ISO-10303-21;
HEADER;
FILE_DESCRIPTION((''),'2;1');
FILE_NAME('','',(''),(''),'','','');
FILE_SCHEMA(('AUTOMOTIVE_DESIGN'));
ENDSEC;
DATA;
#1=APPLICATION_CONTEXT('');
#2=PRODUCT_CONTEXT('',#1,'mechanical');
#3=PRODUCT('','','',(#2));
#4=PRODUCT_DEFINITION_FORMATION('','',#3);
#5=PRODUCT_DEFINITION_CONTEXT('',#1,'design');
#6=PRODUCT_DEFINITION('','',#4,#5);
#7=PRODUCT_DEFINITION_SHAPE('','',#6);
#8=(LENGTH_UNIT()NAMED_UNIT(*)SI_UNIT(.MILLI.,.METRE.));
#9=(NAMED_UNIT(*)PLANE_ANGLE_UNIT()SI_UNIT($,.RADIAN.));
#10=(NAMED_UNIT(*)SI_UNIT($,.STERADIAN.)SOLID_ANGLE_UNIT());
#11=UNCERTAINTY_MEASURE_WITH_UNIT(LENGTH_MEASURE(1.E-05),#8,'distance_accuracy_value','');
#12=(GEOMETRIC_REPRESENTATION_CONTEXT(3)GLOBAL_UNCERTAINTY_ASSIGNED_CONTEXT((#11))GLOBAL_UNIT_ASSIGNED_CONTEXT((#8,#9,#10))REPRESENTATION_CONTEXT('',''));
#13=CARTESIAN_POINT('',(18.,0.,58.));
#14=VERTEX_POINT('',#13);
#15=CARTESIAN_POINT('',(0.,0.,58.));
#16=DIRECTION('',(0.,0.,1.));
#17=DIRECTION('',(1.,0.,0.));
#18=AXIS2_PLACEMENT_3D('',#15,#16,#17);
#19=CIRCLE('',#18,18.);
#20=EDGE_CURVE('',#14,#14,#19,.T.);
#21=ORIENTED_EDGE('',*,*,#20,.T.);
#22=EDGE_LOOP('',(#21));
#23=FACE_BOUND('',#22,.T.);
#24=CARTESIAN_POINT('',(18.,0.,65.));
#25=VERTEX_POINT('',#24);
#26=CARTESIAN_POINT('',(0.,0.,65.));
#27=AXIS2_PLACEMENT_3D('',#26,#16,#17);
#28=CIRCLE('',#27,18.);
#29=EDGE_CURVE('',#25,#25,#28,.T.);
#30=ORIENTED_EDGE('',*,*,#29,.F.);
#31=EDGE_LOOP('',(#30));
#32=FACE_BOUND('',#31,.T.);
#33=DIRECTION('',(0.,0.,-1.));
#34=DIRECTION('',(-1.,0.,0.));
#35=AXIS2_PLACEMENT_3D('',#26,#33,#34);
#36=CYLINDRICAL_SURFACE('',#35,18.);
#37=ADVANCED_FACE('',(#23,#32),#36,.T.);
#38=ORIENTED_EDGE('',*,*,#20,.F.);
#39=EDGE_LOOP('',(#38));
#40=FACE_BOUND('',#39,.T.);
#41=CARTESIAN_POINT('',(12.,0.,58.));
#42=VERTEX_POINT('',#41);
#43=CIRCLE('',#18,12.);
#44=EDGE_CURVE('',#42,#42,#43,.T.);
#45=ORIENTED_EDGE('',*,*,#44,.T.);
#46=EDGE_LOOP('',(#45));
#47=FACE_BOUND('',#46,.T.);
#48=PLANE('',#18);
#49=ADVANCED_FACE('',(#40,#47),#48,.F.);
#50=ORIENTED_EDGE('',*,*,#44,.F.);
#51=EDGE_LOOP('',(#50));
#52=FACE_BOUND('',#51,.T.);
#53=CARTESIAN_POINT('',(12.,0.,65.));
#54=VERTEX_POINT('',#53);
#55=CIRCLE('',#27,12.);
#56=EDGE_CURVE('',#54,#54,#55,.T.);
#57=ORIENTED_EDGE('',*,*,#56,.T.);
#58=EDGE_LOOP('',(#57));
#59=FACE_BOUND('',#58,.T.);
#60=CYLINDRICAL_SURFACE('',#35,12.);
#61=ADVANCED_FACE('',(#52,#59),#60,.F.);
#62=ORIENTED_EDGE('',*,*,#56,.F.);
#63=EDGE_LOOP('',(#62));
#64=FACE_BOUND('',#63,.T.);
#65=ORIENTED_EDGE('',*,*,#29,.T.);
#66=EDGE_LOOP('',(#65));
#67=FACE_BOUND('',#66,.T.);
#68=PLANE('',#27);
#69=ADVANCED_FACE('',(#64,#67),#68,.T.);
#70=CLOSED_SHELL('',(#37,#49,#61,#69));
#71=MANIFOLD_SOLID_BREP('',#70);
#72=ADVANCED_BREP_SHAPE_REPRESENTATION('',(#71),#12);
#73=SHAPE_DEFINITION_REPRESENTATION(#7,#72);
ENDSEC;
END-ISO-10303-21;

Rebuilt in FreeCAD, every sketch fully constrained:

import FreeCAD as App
import Part
import Sketcher

V = App.Vector

doc = App.newDocument("Part")
params = doc.addObject("Spreadsheet::Sheet", "Params")
for row, (alias, value) in enumerate([
    ("sketch1_diameter", "36 mm"),
    ("sketch1_diameter2", "24 mm"),
    ("pad1_length", "7 mm"),
], start=1):
    params.set(f"A{row}", alias)
    params.set(f"B{row}", "=" + value)
    params.setAlias(f"B{row}", alias)

body = doc.addObject("PartDesign::Body", "Body")

# Sketch on XY plane
sketch1 = doc.addObject("Sketcher::SketchObject", "Sketch")
body.addObject(sketch1)
sketch1.AttachmentSupport = (doc.XY_Plane, [""])
sketch1.MapMode = "FlatFace"
sketch1.AttachmentOffset = App.Placement(V(0, 0, 58), App.Rotation())
sketch1.addGeometry([
    Part.Circle(V(0, 0, 0), V(0, 0, 1), 18),
    Part.Circle(V(0, 0, 0), V(0, 0, 1), 12),
], False)
sketch1.addConstraint([
    Sketcher.Constraint("Coincident", 0, 3, -1, 1),
    Sketcher.Constraint("Coincident", 1, 3, -1, 1),
    Sketcher.Constraint("Diameter", 0, 36.0),
    Sketcher.Constraint("Diameter", 1, 24.0),
])
sketch1.setExpression("Constraints[2]", "Params.sketch1_diameter")
sketch1.setExpression("Constraints[3]", "Params.sketch1_diameter2")
pad1 = doc.addObject("PartDesign::Pad", "Pad")
body.addObject(pad1)
pad1.Profile = sketch1
pad1.setExpression("Length", "Params.pad1_length")

doc.recompute()
